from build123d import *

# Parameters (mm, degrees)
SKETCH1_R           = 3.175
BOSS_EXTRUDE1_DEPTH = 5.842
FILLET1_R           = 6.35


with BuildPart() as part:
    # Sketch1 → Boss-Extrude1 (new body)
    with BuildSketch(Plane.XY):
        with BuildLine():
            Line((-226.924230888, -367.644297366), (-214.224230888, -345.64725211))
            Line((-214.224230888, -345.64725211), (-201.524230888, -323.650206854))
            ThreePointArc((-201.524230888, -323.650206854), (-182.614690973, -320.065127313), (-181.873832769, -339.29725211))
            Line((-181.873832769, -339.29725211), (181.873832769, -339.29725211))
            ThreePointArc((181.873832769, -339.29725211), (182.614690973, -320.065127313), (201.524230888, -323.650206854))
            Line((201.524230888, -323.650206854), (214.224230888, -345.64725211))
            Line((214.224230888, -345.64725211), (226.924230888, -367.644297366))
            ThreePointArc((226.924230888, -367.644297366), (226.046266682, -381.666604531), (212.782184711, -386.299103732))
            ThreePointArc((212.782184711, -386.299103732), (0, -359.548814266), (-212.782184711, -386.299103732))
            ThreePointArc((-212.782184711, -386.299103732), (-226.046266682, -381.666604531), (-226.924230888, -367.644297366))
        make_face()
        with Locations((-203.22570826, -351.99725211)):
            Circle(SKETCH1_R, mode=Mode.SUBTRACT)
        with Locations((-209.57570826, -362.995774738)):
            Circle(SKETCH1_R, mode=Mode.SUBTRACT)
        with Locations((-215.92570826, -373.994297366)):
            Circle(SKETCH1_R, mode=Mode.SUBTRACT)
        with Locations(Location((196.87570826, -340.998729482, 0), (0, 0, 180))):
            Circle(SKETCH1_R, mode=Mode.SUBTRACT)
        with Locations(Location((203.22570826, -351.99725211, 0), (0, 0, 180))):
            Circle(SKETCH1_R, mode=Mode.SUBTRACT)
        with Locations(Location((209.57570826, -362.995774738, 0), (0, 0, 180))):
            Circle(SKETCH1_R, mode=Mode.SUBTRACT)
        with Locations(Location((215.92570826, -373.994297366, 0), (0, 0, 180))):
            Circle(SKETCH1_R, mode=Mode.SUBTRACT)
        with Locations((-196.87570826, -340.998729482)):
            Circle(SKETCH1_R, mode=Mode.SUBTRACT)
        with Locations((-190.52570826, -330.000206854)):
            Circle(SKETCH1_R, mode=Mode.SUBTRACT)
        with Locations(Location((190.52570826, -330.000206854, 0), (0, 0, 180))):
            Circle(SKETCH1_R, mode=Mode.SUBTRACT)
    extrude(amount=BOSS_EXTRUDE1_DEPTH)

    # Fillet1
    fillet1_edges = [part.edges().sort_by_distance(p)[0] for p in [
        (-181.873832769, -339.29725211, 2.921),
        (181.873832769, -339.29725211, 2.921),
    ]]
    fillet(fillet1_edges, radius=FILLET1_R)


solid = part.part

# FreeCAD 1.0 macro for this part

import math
import FreeCAD as App
import Part
import Sketcher
from FreeCAD import Vector
Q = App.Units.Quantity


def edges_at(feature, points):
    """Names of the edges that pass closest to the given points."""
    edges = feature.Shape.Edges
    near = lambda p: min(range(len(edges)), key=lambda i: edges[i].distToShape(Part.Vertex(*p))[0])
    return sorted({f"Edge{near(p) + 1}" for p in points})

doc = App.newDocument("Part")
body = doc.addObject("PartDesign::Body", "Body")

sketch1 = body.newObject("Sketcher::SketchObject", "Sketch")
sketch1.AttachmentSupport = (doc.getObject("XY_Plane"), [""])
sketch1.MapMode = "FlatFace"
sketch1.addGeometry(Part.LineSegment(Vector(-201.524231, -323.650207, 0), Vector(-226.924231, -367.644297, 0)), False)
sketch1.addGeometry(Part.ArcOfCircle(Part.Circle(Vector(-215.925708, -373.994297, 0), Vector(0, 0, 1), 12.7), math.radians(150), math.radians(284.330898)), False)
sketch1.addGeometry(Part.ArcOfCircle(Part.Circle(Vector(0, -1219.2, 0), Vector(0, 0, 1), 859.651186), math.radians(75.669102), math.radians(104.330898)), False)
sketch1.addGeometry(Part.ArcOfCircle(Part.Circle(Vector(215.925708, -373.994297, 0), Vector(0, 0, 1), 12.7), math.radians(-104.330898), math.radians(30)), False)
sketch1.addGeometry(Part.LineSegment(Vector(226.924231, -367.644297, 0), Vector(201.524231, -323.650207, 0)), False)
sketch1.addGeometry(Part.ArcOfCircle(Part.Circle(Vector(190.525708, -330.000207, 0), Vector(0, 0, 1), 12.7), math.radians(30), math.radians(227.058597)), False)
sketch1.addGeometry(Part.LineSegment(Vector(181.873833, -339.297252, 0), Vector(-181.873833, -339.297252, 0)), False)
sketch1.addGeometry(Part.ArcOfCircle(Part.Circle(Vector(-190.525708, -330.000207, 0), Vector(0, 0, 1), 12.7), math.radians(-47.058597), math.radians(150)), False)
sketch1.addGeometry(Part.Circle(Vector(215.925708, -373.994297, 0), Vector(0, 0, 1), 3.175), False)
sketch1.addGeometry(Part.Circle(Vector(209.575708, -362.995775, 0), Vector(0, 0, 1), 3.175), False)
sketch1.addGeometry(Part.Circle(Vector(-215.925708, -373.994297, 0), Vector(0, 0, 1), 3.175), False)
sketch1.addGeometry(Part.Circle(Vector(-209.575708, -362.995775, 0), Vector(0, 0, 1), 3.175), False)
sketch1.addGeometry(Part.Circle(Vector(203.225708, -351.997252, 0), Vector(0, 0, 1), 3.175), False)
sketch1.addGeometry(Part.Circle(Vector(196.875708, -340.998729, 0), Vector(0, 0, 1), 3.175), False)
sketch1.addGeometry(Part.Circle(Vector(190.525708, -330.000207, 0), Vector(0, 0, 1), 3.175), False)
sketch1.addGeometry(Part.Circle(Vector(-203.225708, -351.997252, 0), Vector(0, 0, 1), 3.175), False)
sketch1.addGeometry(Part.Circle(Vector(-196.875708, -340.998729, 0), Vector(0, 0, 1), 3.175), False)
sketch1.addGeometry(Part.Circle(Vector(-190.525708, -330.000207, 0), Vector(0, 0, 1), 3.175), False)
sketch1.addConstraint(Sketcher.Constraint("Tangent", 0, 2, 1, 1))
sketch1.addConstraint(Sketcher.Constraint("Tangent", 1, 2, 2, 2))
sketch1.addConstraint(Sketcher.Constraint("Tangent", 2, 1, 3, 1))
sketch1.addConstraint(Sketcher.Constraint("Tangent", 3, 2, 4, 1))
sketch1.addConstraint(Sketcher.Constraint("Tangent", 4, 2, 5, 1))
sketch1.addConstraint(Sketcher.Constraint("Coincident", 5, 2, 6, 1))
sketch1.addConstraint(Sketcher.Constraint("Coincident", 6, 2, 7, 1))
sketch1.addConstraint(Sketcher.Constraint("Tangent", 7, 2, 0, 1))
sketch1.addConstraint(Sketcher.Constraint("Horizontal", 6))
sketch1.addConstraint(Sketcher.Constraint("Coincident", 8, 3, 3, 3))
sketch1.addConstraint(Sketcher.Constraint("Coincident", 10, 3, 1, 3))
sketch1.addConstraint(Sketcher.Constraint("Coincident", 14, 3, 5, 3))
sketch1.addConstraint(Sketcher.Constraint("Coincident", 17, 3, 7, 3))
sketch1.addConstraint(Sketcher.Constraint("Equal", 1, 3))
sketch1.addConstraint(Sketcher.Constraint("Equal", 3, 5))
sketch1.addConstraint(Sketcher.Constraint("Equal", 5, 7))
sketch1.addConstraint(Sketcher.Constraint("Equal", 8, 9))
sketch1.addConstraint(Sketcher.Constraint("Equal", 9, 10))
sketch1.addConstraint(Sketcher.Constraint("Equal", 10, 11))
sketch1.addConstraint(Sketcher.Constraint("Equal", 11, 12))
sketch1.addConstraint(Sketcher.Constraint("Equal", 12, 13))
sketch1.addConstraint(Sketcher.Constraint("Equal", 13, 14))
sketch1.addConstraint(Sketcher.Constraint("Equal", 14, 15))
sketch1.addConstraint(Sketcher.Constraint("Equal", 15, 16))
sketch1.addConstraint(Sketcher.Constraint("Equal", 16, 17))
sketch1.addConstraint(Sketcher.Constraint("Symmetric", 1, 3, 3, 3, -2))
sketch1.addConstraint(Sketcher.Constraint("Symmetric", 5, 3, 7, 3, -2))
sketch1.addConstraint(Sketcher.Constraint("Symmetric", 9, 3, 11, 3, -2))
sketch1.addConstraint(Sketcher.Constraint("Symmetric", 12, 3, 15, 3, -2))
sketch1.addConstraint(Sketcher.Constraint("Symmetric", 13, 3, 16, 3, -2))
sketch1.addConstraint(Sketcher.Constraint("Radius", 1, Q("0.5 in")))
sketch1.addConstraint(Sketcher.Constraint("Diameter", 8, Q("0.25 in")))
sketch1.addConstraint(Sketcher.Constraint("Distance", 0, Q("2 in")))
sketch1.addConstraint(Sketcher.Constraint("DistanceY", 2, 3, -1, 1, Q("48 in")))
sketch1.addConstraint(Sketcher.Constraint("Angle", 0, Q("-120 deg")))
sketch1.addConstraint(Sketcher.Constraint("DistanceX", 5, 3, 12, 3, Q("0.5 in")))
sketch1.addConstraint(Sketcher.Constraint("DistanceX", 13, 3, 9, 3, Q("0.5 in")))
sketch1.addConstraint(Sketcher.Constraint("DistanceY", 12, 3, 5, 2, Q("0.5 in")))
sketch1.addConstraint(Sketcher.Constraint("DistanceX", 9, 3, 3, 3, Q("0.25 in")))
sketch1.addConstraint(Sketcher.Constraint("Radius", 2, Q("859.651186 mm")))
sketch1.addConstraint(Sketcher.Constraint("DistanceX", 5, 2, 4, 2, Q("19.650398 mm")))
sketch1.addConstraint(Sketcher.Constraint("DistanceX", 6, 2, 6, 1, Q("363.747666 mm")))
sketch1.addConstraint(Sketcher.Constraint("DistanceY", 13, 3, -1, 1, Q("340.998729 mm")))
sketch1.addConstraint(Sketcher.Constraint("DistanceY", 1, 2, 11, 3, Q("23.303329 mm")))
pad1 = body.newObject("PartDesign::Pad", "Pad")
pad1.Profile = sketch1
pad1.Length = Q("0.23 in")
doc.recompute()

fillet = body.newObject("PartDesign::Fillet", "Fillet")
fillet.Base = (pad1, edges_at(pad1, [(-181.874, -339.297, 2.921), (181.874, -339.297, 2.921)]))
fillet.Radius = Q("0.25 in")

doc.recompute()
